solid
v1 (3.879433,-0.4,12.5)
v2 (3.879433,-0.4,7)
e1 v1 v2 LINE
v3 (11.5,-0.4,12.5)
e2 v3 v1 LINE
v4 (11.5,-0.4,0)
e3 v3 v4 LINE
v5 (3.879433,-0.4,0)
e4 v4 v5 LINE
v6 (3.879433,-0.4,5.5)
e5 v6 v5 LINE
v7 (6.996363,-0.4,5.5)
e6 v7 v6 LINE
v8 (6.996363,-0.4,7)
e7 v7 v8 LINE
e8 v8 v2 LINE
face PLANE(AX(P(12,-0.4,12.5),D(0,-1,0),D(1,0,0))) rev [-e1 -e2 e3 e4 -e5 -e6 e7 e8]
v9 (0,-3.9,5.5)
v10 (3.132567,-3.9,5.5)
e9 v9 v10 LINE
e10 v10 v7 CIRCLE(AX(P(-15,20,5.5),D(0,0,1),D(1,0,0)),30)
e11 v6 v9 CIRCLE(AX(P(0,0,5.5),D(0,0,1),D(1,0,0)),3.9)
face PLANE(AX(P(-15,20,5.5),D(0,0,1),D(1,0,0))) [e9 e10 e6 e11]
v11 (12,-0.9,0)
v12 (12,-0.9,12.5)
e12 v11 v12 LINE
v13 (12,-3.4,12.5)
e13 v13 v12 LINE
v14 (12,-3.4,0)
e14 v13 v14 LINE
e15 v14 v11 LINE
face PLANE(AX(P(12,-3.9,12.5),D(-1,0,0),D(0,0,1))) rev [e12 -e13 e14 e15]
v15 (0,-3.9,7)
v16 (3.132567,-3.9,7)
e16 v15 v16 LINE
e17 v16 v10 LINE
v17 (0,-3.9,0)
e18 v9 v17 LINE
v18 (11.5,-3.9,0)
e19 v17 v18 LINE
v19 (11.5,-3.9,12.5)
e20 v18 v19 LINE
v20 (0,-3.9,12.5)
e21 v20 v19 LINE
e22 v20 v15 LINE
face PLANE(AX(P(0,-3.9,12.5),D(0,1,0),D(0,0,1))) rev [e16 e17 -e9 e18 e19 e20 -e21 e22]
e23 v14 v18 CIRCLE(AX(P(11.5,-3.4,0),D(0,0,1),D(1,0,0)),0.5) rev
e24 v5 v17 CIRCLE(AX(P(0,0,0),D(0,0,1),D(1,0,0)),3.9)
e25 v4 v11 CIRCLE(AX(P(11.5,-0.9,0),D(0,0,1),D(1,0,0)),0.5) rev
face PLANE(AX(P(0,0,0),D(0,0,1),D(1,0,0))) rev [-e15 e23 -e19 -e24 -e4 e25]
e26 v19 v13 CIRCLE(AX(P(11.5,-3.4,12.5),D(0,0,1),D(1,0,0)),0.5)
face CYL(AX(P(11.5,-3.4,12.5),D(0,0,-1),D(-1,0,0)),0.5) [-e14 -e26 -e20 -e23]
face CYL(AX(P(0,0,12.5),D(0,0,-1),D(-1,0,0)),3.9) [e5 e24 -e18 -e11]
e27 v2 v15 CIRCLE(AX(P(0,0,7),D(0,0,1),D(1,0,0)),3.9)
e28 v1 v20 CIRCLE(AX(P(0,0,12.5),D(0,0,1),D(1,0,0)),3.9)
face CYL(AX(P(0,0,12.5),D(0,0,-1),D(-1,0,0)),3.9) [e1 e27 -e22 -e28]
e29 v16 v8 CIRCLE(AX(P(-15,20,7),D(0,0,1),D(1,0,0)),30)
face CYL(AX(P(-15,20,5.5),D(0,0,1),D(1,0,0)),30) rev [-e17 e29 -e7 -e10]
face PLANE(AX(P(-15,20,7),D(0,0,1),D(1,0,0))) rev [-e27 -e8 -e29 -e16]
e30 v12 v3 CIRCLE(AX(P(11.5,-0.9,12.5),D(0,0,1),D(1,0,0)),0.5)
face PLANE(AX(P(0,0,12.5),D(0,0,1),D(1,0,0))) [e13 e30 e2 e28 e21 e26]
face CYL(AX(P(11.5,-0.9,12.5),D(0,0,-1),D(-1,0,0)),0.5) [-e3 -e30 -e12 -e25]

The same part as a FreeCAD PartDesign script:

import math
import FreeCAD as App
import Part
import Sketcher
from FreeCAD import Vector
Q = App.Units.Quantity


def edges_at(feature, points):
    """Names of the edges that pass closest to the given points."""
    edges = feature.Shape.Edges
    near = lambda p: min(range(len(edges)), key=lambda i: edges[i].distToShape(Part.Vertex(*p))[0])
    return sorted({f"Edge{near(p) + 1}" for p in points})

doc = App.newDocument("Part")
body = doc.addObject("PartDesign::Body", "Body")

# Sketch on XY plane
sketch1 = body.newObject("Sketcher::SketchObject", "Sketch")
sketch1.AttachmentSupport = (doc.getObject("XY_Plane"), [""])
sketch1.MapMode = "FlatFace"
sketch1.addGeometry(Part.LineSegment(Vector(0, -3.9, 0), Vector(12, -3.9, 0)), False)
sketch1.addGeometry(Part.LineSegment(Vector(12, -3.9, 0), Vector(12, -0.4, 0)), False)
sketch1.addGeometry(Part.LineSegment(Vector(12, -0.4, 0), Vector(3.9, -0.4, 0)), False)
sketch1.addGeometry(Part.ArcOfCircle(Part.Circle(Vector(0, 0, 0), Vector(0, 0, 1), 3.9), math.radians(-6), math.radians(270)), False)
sketch1.addConstraint(Sketcher.Constraint("Coincident", 0, 2, 1, 1))
sketch1.addConstraint(Sketcher.Constraint("Coincident", 1, 2, 2, 1))
sketch1.addConstraint(Sketcher.Constraint("Coincident", 2, 2, 3, 1))
sketch1.addConstraint(Sketcher.Constraint("Tangent", 3, 2, 0, 1))
sketch1.addConstraint(Sketcher.Constraint("Horizontal", 0))
sketch1.addConstraint(Sketcher.Constraint("Vertical", 1))
sketch1.addConstraint(Sketcher.Constraint("Horizontal", 2))
sketch1.addConstraint(Sketcher.Constraint("Coincident", 3, 3, -1, 1))
sketch1.addConstraint(Sketcher.Constraint("Radius", 3, Q("3.9 mm")))
sketch1.addConstraint(Sketcher.Constraint("DistanceX", 0, 1, 0, 2, Q("12 mm")))
sketch1.addConstraint(Sketcher.Constraint("DistanceY", 1, 1, 1, 2, Q("3.5 mm")))
pad1 = body.newObject("PartDesign::Pad", "Pad")
pad1.Profile = sketch1
pad1.Length = 12.5
doc.recompute()

fillet = body.newObject("PartDesign::Fillet", "Fillet")
fillet.Base = (pad1, edges_at(pad1, [(12, -3.9, 6.25), (12, -0.4, 6.25)]))
fillet.Radius = 0.5

# Sketch on XY plane
sketch2 = body.newObject("Sketcher::SketchObject", "Sketch001")
sketch2.AttachmentSupport = (doc.getObject("XY_Plane"), [""])
sketch2.MapMode = "FlatFace"
sketch2.AttachmentOffset = App.Placement(Vector(0, 0, 7), App.Rotation())
sketch2.addGeometry(Part.Circle(Vector(-15, 20, 0), Vector(0, 0, 1), 30), False)
sketch2.addConstraint(Sketcher.Constraint("Diameter", 0, Q("60 mm")))
sketch2.addConstraint(Sketcher.Constraint("DistanceX", 0, 3, -1, 1, Q("15 mm")))
sketch2.addConstraint(Sketcher.Constraint("DistanceY", -1, 1, 0, 3, Q("20 mm")))
pocket1 = body.newObject("PartDesign::Pocket", "Pocket")
pocket1.Profile = sketch2
pocket1.Length = 1.5

doc.recompute()
